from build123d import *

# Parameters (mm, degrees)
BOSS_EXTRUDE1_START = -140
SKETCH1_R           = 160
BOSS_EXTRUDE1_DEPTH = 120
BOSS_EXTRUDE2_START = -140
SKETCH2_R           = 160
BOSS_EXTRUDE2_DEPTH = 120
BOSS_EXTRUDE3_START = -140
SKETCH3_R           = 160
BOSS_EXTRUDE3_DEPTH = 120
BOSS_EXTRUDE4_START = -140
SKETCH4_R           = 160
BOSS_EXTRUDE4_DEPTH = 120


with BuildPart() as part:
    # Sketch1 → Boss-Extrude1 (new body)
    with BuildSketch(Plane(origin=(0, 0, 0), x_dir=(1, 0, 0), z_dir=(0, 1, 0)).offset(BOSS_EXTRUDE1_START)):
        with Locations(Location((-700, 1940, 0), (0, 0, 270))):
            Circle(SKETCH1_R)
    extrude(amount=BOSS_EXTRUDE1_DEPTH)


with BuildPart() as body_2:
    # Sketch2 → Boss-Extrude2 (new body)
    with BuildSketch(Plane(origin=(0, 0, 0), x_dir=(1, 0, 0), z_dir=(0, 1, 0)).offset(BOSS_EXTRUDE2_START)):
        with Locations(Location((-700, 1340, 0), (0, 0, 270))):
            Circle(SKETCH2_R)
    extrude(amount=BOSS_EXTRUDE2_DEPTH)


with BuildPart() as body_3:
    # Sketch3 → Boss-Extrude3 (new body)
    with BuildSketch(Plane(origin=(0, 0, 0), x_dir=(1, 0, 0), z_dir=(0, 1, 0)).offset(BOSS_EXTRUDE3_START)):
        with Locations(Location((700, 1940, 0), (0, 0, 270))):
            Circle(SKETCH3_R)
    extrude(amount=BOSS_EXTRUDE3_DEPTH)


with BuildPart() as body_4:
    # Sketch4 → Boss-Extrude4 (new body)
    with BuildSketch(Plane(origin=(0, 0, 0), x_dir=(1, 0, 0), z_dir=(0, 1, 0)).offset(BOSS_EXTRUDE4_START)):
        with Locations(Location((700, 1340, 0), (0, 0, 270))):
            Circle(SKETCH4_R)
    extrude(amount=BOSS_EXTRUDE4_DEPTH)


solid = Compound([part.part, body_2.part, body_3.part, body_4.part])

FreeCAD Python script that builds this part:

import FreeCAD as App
import Part
import Sketcher

V = App.Vector
Q = App.Units.Quantity

doc = App.newDocument("Part")
body = doc.addObject("PartDesign::Body", "Body")

# Sketch on XZ plane
sketch1 = doc.addObject("Sketcher::SketchObject", "Sketch")
body.addObject(sketch1)
sketch1.AttachmentSupport = (doc.XZ_Plane, [""])
sketch1.MapMode = "FlatFace"
sketch1.AttachmentOffset = App.Placement(V(0, 0, 140), App.Rotation())
sketch1.addGeometry(Part.Circle(V(-700, -1940, 0), V(0, 0, 1), 160), False)
sketch1.addConstraint([
    Sketcher.Constraint("Diameter", 0, Q("320 mm")),
    Sketcher.Constraint("DistanceX", 0, 3, -1, 1, Q("700 mm")),
    Sketcher.Constraint("DistanceY", 0, 3, -1, 1, Q("1940 mm")),
])
pad1 = doc.addObject("PartDesign::Pad", "Pad")
body.addObject(pad1)
pad1.Profile = sketch1
pad1.Length = 120
pad1.Reversed = True
body2 = doc.addObject("PartDesign::Body", "Body001")

# Sketch on XZ plane
sketch2 = doc.addObject("Sketcher::SketchObject", "Sketch001")
body2.addObject(sketch2)
sketch2.AttachmentSupport = (doc.getObject("XZ_Plane001"), [""])
sketch2.MapMode = "FlatFace"
sketch2.AttachmentOffset = App.Placement(V(0, 0, 140), App.Rotation())
sketch2.addGeometry(Part.Circle(V(-700, -1340, 0), V(0, 0, 1), 160), False)
sketch2.addConstraint([
    Sketcher.Constraint("Diameter", 0, Q("320 mm")),
    Sketcher.Constraint("DistanceX", 0, 3, -1, 1, Q("700 mm")),
    Sketcher.Constraint("DistanceY", 0, 3, -1, 1, Q("1340 mm")),
])
pad2 = doc.addObject("PartDesign::Pad", "Pad001")
body2.addObject(pad2)
pad2.Profile = sketch2
pad2.Length = 120
pad2.Reversed = True
body3 = doc.addObject("PartDesign::Body", "Body002")

# Sketch on XZ plane
sketch3 = doc.addObject("Sketcher::SketchObject", "Sketch002")
body3.addObject(sketch3)
sketch3.AttachmentSupport = (doc.getObject("XZ_Plane002"), [""])
sketch3.MapMode = "FlatFace"
sketch3.AttachmentOffset = App.Placement(V(0, 0, 140), App.Rotation())
sketch3.addGeometry(Part.Circle(V(700, -1940, 0), V(0, 0, 1), 160), False)
sketch3.addConstraint([
    Sketcher.Constraint("Diameter", 0, Q("320 mm")),
    Sketcher.Constraint("DistanceX", -1, 1, 0, 3, Q("700 mm")),
    Sketcher.Constraint("DistanceY", 0, 3, -1, 1, Q("1940 mm")),
])
pad3 = doc.addObject("PartDesign::Pad", "Pad002")
body3.addObject(pad3)
pad3.Profile = sketch3
pad3.Length = 120
pad3.Reversed = True
body4 = doc.addObject("PartDesign::Body", "Body003")

# Sketch on XZ plane
sketch4 = doc.addObject("Sketcher::SketchObject", "Sketch003")
body4.addObject(sketch4)
sketch4.AttachmentSupport = (doc.getObject("XZ_Plane003"), [""])
sketch4.MapMode = "FlatFace"
sketch4.AttachmentOffset = App.Placement(V(0, 0, 140), App.Rotation())
sketch4.addGeometry(Part.Circle(V(700, -1340, 0), V(0, 0, 1), 160), False)
sketch4.addConstraint([
    Sketcher.Constraint("Diameter", 0, Q("320 mm")),
    Sketcher.Constraint("DistanceX", -1, 1, 0, 3, Q("700 mm")),
    Sketcher.Constraint("DistanceY", 0, 3, -1, 1, Q("1340 mm")),
])
pad4 = doc.addObject("PartDesign::Pad", "Pad003")
body4.addObject(pad4)
pad4.Profile = sketch4
pad4.Length = 120
pad4.Reversed = True

doc.recompute()
